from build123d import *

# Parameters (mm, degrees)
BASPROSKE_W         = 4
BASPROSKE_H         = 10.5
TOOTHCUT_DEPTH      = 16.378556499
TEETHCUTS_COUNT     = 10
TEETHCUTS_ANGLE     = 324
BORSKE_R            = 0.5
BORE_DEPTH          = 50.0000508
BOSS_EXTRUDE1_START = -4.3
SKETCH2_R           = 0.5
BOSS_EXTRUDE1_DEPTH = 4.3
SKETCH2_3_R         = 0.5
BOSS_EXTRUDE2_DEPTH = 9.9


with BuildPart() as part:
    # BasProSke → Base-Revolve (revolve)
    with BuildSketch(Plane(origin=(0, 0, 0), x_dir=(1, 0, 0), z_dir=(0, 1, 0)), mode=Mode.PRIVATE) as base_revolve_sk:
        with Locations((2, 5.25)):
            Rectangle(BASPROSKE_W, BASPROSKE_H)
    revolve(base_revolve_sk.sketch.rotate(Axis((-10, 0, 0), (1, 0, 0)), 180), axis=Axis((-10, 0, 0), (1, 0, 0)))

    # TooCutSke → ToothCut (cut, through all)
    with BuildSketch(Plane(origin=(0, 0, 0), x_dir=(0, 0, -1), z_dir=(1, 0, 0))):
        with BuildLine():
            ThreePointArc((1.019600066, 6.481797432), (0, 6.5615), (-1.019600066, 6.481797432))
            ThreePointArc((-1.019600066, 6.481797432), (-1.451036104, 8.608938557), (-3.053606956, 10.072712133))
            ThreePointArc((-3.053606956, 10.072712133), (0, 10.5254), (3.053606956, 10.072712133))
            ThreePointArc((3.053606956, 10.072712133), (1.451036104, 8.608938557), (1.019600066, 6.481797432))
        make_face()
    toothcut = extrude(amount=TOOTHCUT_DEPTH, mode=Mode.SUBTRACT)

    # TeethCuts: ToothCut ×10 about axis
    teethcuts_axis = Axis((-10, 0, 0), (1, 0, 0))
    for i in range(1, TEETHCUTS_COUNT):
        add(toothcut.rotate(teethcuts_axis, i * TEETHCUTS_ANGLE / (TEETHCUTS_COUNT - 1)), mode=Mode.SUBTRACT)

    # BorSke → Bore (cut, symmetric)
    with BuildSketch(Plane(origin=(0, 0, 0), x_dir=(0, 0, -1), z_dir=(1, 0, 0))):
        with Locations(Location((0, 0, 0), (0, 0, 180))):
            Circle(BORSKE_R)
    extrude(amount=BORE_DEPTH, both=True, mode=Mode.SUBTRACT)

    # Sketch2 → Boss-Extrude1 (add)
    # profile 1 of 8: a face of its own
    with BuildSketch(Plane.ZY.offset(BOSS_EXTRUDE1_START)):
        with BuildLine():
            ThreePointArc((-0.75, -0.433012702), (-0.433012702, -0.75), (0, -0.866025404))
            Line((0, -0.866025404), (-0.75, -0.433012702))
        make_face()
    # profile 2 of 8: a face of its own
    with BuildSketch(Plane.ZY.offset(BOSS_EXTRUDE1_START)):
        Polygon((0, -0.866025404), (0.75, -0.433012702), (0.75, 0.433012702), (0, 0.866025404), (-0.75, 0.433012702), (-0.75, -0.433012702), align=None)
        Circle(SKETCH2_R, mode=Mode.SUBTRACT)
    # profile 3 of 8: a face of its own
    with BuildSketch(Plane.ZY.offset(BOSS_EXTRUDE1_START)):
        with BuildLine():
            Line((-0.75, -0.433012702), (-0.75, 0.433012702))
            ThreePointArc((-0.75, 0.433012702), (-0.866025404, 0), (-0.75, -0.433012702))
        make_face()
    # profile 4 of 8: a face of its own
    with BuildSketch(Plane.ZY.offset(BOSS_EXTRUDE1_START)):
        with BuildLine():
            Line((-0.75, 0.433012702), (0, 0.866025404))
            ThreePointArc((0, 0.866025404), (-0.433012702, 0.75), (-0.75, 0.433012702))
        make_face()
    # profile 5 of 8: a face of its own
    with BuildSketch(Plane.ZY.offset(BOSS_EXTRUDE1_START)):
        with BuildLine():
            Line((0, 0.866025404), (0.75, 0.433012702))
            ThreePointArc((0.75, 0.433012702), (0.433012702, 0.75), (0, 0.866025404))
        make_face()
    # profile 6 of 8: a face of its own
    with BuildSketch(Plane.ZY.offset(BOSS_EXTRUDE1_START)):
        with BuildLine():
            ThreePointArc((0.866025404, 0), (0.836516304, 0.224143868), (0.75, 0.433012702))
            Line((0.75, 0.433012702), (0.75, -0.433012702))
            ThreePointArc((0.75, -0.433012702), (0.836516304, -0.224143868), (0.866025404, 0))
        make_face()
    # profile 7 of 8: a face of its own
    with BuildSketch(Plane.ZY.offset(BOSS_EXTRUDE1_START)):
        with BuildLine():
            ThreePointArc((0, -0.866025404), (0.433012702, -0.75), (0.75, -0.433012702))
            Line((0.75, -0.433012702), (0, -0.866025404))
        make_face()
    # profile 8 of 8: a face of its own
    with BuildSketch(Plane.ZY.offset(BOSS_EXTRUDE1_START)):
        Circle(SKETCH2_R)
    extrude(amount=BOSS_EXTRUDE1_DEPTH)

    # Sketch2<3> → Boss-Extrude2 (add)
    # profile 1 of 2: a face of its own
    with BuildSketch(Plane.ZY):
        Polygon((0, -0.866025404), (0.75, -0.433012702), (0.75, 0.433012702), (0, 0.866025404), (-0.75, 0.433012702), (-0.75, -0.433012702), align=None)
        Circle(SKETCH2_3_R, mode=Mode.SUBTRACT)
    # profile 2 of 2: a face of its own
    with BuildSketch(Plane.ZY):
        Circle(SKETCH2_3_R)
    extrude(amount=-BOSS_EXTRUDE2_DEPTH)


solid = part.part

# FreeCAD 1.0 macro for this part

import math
import FreeCAD as App
import Part
import Sketcher

V = App.Vector
Q = App.Units.Quantity


def add_polygon(sketch, points):
    """Adds a closed chain of lines whose ends are joined by coincident constraints."""
    first, n = sketch.GeometryCount, len(points)
    for a, b in zip(points, points[1:] + points[:1]):
        sketch.addGeometry(Part.LineSegment(App.Vector(*a, 0), App.Vector(*b, 0)), False)
    for i in range(n):
        sketch.addConstraint(Sketcher.Constraint("Coincident", first + i, 2, first + (i + 1) % n, 1))

doc = App.newDocument("Part")
body = doc.addObject("PartDesign::Body", "Body")

sketch1 = body.newObject("Sketcher::SketchObject", "Sketch")
sketch1.AttachmentSupport = (doc.getObject("XZ_Plane"), [""])
sketch1.MapMode = "FlatFace"
add_polygon(sketch1, [(0, -10.5), (0, 0), (4, 0), (4, -10.5)])
sketch1.addConstraint([
    Sketcher.Constraint("Vertical", 0),
    Sketcher.Constraint("Horizontal", 1),
    Sketcher.Constraint("Vertical", 2),
    Sketcher.Constraint("Horizontal", 3),
    Sketcher.Constraint("Coincident", 0, 2, -1, 1),
    Sketcher.Constraint("DistanceX", 1, 1, 1, 2, Q("4 mm")),
    Sketcher.Constraint("DistanceY", 0, 1, 0, 2, Q("10.5 mm")),
])
revolution = body.newObject("PartDesign::Revolution", "Revolution")
revolution.Profile = sketch1
revolution.ReferenceAxis = (sketch1, ["H_Axis"])
revolution.Angle = 360

sketch2 = body.newObject("Sketcher::SketchObject", "Sketch001")
sketch2.AttachmentSupport = (doc.getObject("YZ_Plane"), [""])
sketch2.MapMode = "FlatFace"
sketch2.addGeometry([
    Part.ArcOfCircle(Part.Circle(V(0, 0, 0), V(0, 0, 1), 6.6), math.radians(-8.94), math.radians(8.94)),
    Part.ArcOfCircle(Part.Circle(V(6.9, -4.5, 0), V(0, 0, 1), 3.5), math.radians(24), math.radians(97)),
    Part.ArcOfCircle(Part.Circle(V(0, 0, 0), V(0, 0, 1), 10.5), math.radians(-17), math.radians(17)),
    Part.ArcOfCircle(Part.Circle(V(6.9, 4.5, 0), V(0, 0, 1), 3.5), math.radians(-97), math.radians(-24)),
], False)
sketch2.addConstraint([
    Sketcher.Constraint("Coincident", 0, 1, 1, 2),
    Sketcher.Constraint("Coincident", 1, 1, 2, 1),
    Sketcher.Constraint("Coincident", 2, 2, 3, 2),
    Sketcher.Constraint("Coincident", 3, 1, 0, 2),
    Sketcher.Constraint("Coincident", 0, 3, -1, 1),
    Sketcher.Constraint("Coincident", 2, 3, -1, 1),
    Sketcher.Constraint("Equal", 1, 3),
    Sketcher.Constraint("Symmetric", 1, 3, 3, 3, -1),
    Sketcher.Constraint("Radius", 1, Q("3.5 mm")),
    Sketcher.Constraint("Radius", 0, Q("6.5615 mm")),
    Sketcher.Constraint("Radius", 2, Q("10.5254 mm")),
    Sketcher.Constraint("DistanceY", 0, 1, -1, 1, Q("1.0196 mm")),
    Sketcher.Constraint("DistanceY", 1, 3, -1, 1, Q("4.496421 mm")),
])
pocket1 = body.newObject("PartDesign::Pocket", "Pocket")
pocket1.Profile = sketch2
pocket1.Type = "ThroughAll"
pocket1.Reversed = True
doc.recompute()

polarpattern = body.newObject("PartDesign::PolarPattern", "PolarPattern")
polarpattern.Originals = [pocket1]
polarpattern.Axis = (doc.getObject("X_Axis"), [""])
polarpattern.Angle = 360
polarpattern.Occurrences = 10
body.Tip = polarpattern

sketch3 = body.newObject("Sketcher::SketchObject", "Sketch002")
sketch3.AttachmentSupport = (doc.getObject("YZ_Plane"), [""])
sketch3.MapMode = "FlatFace"
sketch3.addGeometry(Part.Circle(V(0, 0, 0), V(0, 0, 1), 0.5), False)
sketch3.addConstraint([
    Sketcher.Constraint("Coincident", 0, 3, -1, 1),
    Sketcher.Constraint("Diameter", 0, Q("1 mm")),
])
pocket2 = body.newObject("PartDesign::Pocket", "Pocket001")
pocket2.Profile = sketch3
pocket2.Length = 100.000102
pocket2.Midplane = True

sketch4 = body.newObject("Sketcher::SketchObject", "Sketch003")
sketch4.AttachmentSupport = (doc.getObject("YZ_Plane"), [""])
sketch4.MapMode = "FlatFace"
sketch4.AttachmentOffset = App.Placement(V(0, 0, 4.3), App.Rotation())
sketch4.addGeometry([
    Part.ArcOfCircle(Part.Circle(V(0, 0, 0), V(0, 0, 1), 0.87), math.radians(180), math.radians(240)),
    Part.ArcOfCircle(Part.Circle(V(0, 0, 0), V(0, 0, 1), 0.87), math.radians(120), math.radians(180)),
    Part.ArcOfCircle(Part.Circle(V(0, 0, 0), V(0, 0, 1), 0.87), math.radians(90), math.radians(120)),
    Part.ArcOfCircle(Part.Circle(V(0, 0, 0), V(0, 0, 1), 0.87), math.radians(60), math.radians(90)),
    Part.ArcOfCircle(Part.Circle(V(0, 0, 0), V(0, 0, 1), 0.87), math.radians(0), math.radians(60)),
    Part.ArcOfCircle(Part.Circle(V(0, 0, 0), V(0, 0, 1), 0.87), math.radians(-60), math.radians(0)),
    Part.ArcOfCircle(Part.Circle(V(0, 0, 0), V(0, 0, 1), 0.87), math.radians(-120), math.radians(-60)),
], False)
sketch4.addConstraint([
    Sketcher.Constraint("Tangent", 0, 1, 1, 2),
    Sketcher.Constraint("Tangent", 1, 1, 2, 2),
    Sketcher.Constraint("Tangent", 2, 1, 3, 2),
    Sketcher.Constraint("Tangent", 3, 1, 4, 2),
    Sketcher.Constraint("Tangent", 4, 1, 5, 2),
    Sketcher.Constraint("Tangent", 5, 1, 6, 2),
    Sketcher.Constraint("Tangent", 6, 1, 0, 2),
    Sketcher.Constraint("Coincident", 0, 3, -1, 1),
    Sketcher.Constraint("Coincident", 2, 3, -1, 1),
    Sketcher.Constraint("Coincident", 4, 3, -1, 1),
    Sketcher.Constraint("PointOnObject", 0, 1, -1),
    Sketcher.Constraint("PointOnObject", 2, 1, -2),
    Sketcher.Constraint("PointOnObject", 4, 1, -1),
    Sketcher.Constraint("Horizontal", 1, 1, 3, 1),
    Sketcher.Constraint("Horizontal", 5, 1, 6, 1),
    Sketcher.Constraint("Vertical", 3, 1, 5, 1),
    Sketcher.Constraint("DistanceY", -1, 1, 1, 1, Q("0.75 mm")),
    Sketcher.Constraint("Radius", 0, Q("0.866025 mm")),
])
pad1 = body.newObject("PartDesign::Pad", "Pad")
pad1.Profile = sketch4
pad1.Length = 4.3
pad1.Reversed = True

sketch5 = body.newObject("Sketcher::SketchObject", "Sketch004")
sketch5.AttachmentSupport = (doc.getObject("YZ_Plane"), [""])
sketch5.MapMode = "FlatFace"
add_polygon(sketch5, [(-0.9, 0), (-0.4, 0.8), (0.4, 0.8), (0.9, 0), (0.4, -0.8), (-0.4, -0.8)])
sketch5.addConstraint([
    Sketcher.Constraint("Horizontal", 1),
    Sketcher.Constraint("Horizontal", 4),
    Sketcher.Constraint("Symmetric", 0, 2, 3, 2, -1, 1),
    Sketcher.Constraint("Symmetric", 2, 2, 5, 2, -1, 1),
    Sketcher.Constraint("PointOnObject", 2, 2, -1),
    Sketcher.Constraint("Parallel", 2, 5),
    Sketcher.Constraint("Vertical", 1, 2, 3, 2),
    Sketcher.Constraint("Angle", 0, Q("60 deg")),
    Sketcher.Constraint("DistanceY", 3, 2, 1, 2, Q("1.5 mm")),
    Sketcher.Constraint("DistanceX", 1, 1, 1, 2, Q("0.866025 mm")),
])
pad2 = body.newObject("PartDesign::Pad", "Pad001")
pad2.Profile = sketch5
pad2.Length = 9.9

doc.recompute()
